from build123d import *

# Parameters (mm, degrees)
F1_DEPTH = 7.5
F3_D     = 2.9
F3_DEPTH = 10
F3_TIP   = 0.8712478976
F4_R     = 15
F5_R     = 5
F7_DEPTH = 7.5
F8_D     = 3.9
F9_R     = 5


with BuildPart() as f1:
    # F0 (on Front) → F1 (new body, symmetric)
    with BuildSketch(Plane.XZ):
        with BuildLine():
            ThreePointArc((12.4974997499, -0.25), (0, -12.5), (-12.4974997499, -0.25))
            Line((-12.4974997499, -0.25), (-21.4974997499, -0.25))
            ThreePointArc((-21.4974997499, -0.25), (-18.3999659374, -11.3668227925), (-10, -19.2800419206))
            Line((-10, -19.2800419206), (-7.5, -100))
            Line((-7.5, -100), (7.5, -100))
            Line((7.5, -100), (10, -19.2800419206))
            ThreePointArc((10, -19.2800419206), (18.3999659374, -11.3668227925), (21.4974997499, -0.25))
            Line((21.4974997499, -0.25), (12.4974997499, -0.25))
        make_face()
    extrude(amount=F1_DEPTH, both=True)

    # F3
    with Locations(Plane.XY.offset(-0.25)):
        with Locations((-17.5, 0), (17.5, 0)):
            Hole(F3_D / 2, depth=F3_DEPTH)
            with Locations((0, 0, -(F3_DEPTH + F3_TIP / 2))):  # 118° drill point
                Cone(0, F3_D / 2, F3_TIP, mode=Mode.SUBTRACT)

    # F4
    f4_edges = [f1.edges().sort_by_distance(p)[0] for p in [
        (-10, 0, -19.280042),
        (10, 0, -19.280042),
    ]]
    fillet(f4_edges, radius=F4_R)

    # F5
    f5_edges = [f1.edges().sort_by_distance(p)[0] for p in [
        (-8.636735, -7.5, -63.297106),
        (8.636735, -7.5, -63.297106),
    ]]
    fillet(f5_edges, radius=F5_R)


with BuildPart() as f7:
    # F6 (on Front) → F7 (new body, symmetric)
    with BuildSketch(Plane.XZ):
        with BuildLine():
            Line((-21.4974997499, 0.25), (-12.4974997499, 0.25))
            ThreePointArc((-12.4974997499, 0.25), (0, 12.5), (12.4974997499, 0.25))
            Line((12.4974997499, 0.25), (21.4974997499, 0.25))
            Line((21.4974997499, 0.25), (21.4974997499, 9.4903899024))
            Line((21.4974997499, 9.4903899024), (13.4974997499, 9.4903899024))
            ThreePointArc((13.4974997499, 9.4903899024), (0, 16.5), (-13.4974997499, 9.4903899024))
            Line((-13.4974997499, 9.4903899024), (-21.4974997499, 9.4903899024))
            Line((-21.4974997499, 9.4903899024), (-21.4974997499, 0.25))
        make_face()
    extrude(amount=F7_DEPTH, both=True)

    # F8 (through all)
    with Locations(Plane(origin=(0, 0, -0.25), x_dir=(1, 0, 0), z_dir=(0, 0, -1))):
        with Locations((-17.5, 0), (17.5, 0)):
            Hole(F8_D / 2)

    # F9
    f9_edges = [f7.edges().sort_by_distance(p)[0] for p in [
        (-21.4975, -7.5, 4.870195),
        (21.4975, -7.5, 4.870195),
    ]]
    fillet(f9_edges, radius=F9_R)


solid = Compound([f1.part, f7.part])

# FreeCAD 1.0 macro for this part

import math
import FreeCAD as App
import Part
import Sketcher


def edges_at(feature, points):
    """Names of the edges that pass closest to the given points."""
    edges = feature.Shape.Edges
    near = lambda p: min(range(len(edges)), key=lambda i: edges[i].distToShape(Part.Vertex(*p))[0])
    return sorted({f"Edge{near(p) + 1}" for p in points})

doc = App.newDocument("Part")
body = doc.addObject("PartDesign::Body", "Body")

# Sketch on XZ plane
sketch1 = body.newObject("Sketcher::SketchObject", "Sketch")
sketch1.AttachmentSupport = (doc.getObject("XZ_Plane"), [""])
sketch1.MapMode = "FlatFace"
sketch1.addGeometry(Part.ArcOfCircle(Part.Circle(App.Vector(0, 0, 0), App.Vector(0, 0, 1), 12.5), math.radians(-178.854008), math.radians(-1.145992)), False)
sketch1.addGeometry(Part.LineSegment(App.Vector(-12.4975, -0.25, 0), App.Vector(-21.4975, -0.25, 0)), False)
sketch1.addGeometry(Part.ArcOfCircle(Part.Circle(App.Vector(0, -0.25, 0), App.Vector(0, 0, 1), 21.4975), math.radians(180), math.radians(242.278751)), False)
sketch1.addGeometry(Part.LineSegment(App.Vector(-10, -19.280042, 0), App.Vector(-7.5, -100, 0)), False)
sketch1.addGeometry(Part.LineSegment(App.Vector(-7.5, -100, 0), App.Vector(7.5, -100, 0)), False)
sketch1.addGeometry(Part.LineSegment(App.Vector(7.5, -100, 0), App.Vector(10, -19.280042, 0)), False)
sketch1.addGeometry(Part.ArcOfCircle(Part.Circle(App.Vector(0, -0.25, 0), App.Vector(0, 0, 1), 21.4975), math.radians(-62.278751), math.radians(0)), False)
sketch1.addGeometry(Part.LineSegment(App.Vector(21.4975, -0.25, 0), App.Vector(12.4975, -0.25, 0)), False)
sketch1.addConstraint(Sketcher.Constraint("Coincident", 0, 1, 1, 1))
sketch1.addConstraint(Sketcher.Constraint("Coincident", 1, 2, 2, 1))
sketch1.addConstraint(Sketcher.Constraint("Coincident", 2, 2, 3, 1))
sketch1.addConstraint(Sketcher.Constraint("Coincident", 3, 2, 4, 1))
sketch1.addConstraint(Sketcher.Constraint("Coincident", 4, 2, 5, 1))
sketch1.addConstraint(Sketcher.Constraint("Coincident", 5, 2, 6, 1))
sketch1.addConstraint(Sketcher.Constraint("Coincident", 6, 2, 7, 1))
sketch1.addConstraint(Sketcher.Constraint("Coincident", 7, 2, 0, 2))
sketch1.addConstraint(Sketcher.Constraint("Horizontal", 1))
sketch1.addConstraint(Sketcher.Constraint("Horizontal", 4))
sketch1.addConstraint(Sketcher.Constraint("Horizontal", 7))
sketch1.addConstraint(Sketcher.Constraint("Coincident", 0, 3, -1, 1))
sketch1.addConstraint(Sketcher.Constraint("Coincident", 6, 3, 2, 3))
sketch1.addConstraint(Sketcher.Constraint("Equal", 2, 6))
sketch1.addConstraint(Sketcher.Constraint("Symmetric", 2, 2, 5, 2, -2))
sketch1.addConstraint(Sketcher.Constraint("Horizontal", 6, 3, 0, 1))
sketch1.addConstraint(Sketcher.Constraint("Horizontal", 1, 2, 6, 2))
sketch1.addConstraint(Sketcher.Constraint("Equal", 3, 5))
sketch1.addConstraint(Sketcher.Constraint("Radius", 0, 12.5))
sketch1.addConstraint(Sketcher.Constraint("DistanceX", 1, 2, 1, 1, 9.0))
sketch1.addConstraint(Sketcher.Constraint("DistanceX", 4, 1, 4, 2, 15.0))
sketch1.addConstraint(Sketcher.Constraint("DistanceX", 2, 2, -1, 1, 10.0))
sketch1.addConstraint(Sketcher.Constraint("DistanceY", 3, 2, -1, 1, 100.0))
sketch1.addConstraint(Sketcher.Constraint("Radius", 2, 21.4975))
pad1 = body.newObject("PartDesign::Pad", "Pad")
pad1.Profile = sketch1
pad1.Length = 15
pad1.Midplane = True

# Sketch on XY plane
sketch2 = body.newObject("Sketcher::SketchObject", "Sketch001")
sketch2.AttachmentSupport = (doc.getObject("XY_Plane"), [""])
sketch2.MapMode = "FlatFace"
sketch2.AttachmentOffset = App.Placement(App.Vector(0, 0, -0.25), App.Rotation())
sketch2.addGeometry(Part.Circle(App.Vector(-17.5, 0, 0), App.Vector(0, 0, 1), 1.4), False)
sketch2.addGeometry(Part.Circle(App.Vector(17.5, 0, 0), App.Vector(0, 0, 1), 1.4), False)
sketch2.addConstraint(Sketcher.Constraint("Equal", 0, 1))
sketch2.addConstraint(Sketcher.Constraint("Symmetric", 0, 3, 1, 3, -1, 1))
sketch2.addConstraint(Sketcher.Constraint("PointOnObject", 0, 3, -1))
sketch2.addConstraint(Sketcher.Constraint("Diameter", 0, 2.9))
sketch2.addConstraint(Sketcher.Constraint("DistanceX", 0, 3, 1, 3, 35.0))
doc.recompute()
hole = body.newObject("PartDesign::Hole", "Hole")
hole.Profile = sketch2
hole.ThreadType = "None"
hole.Diameter = 2.9
hole.DepthType = "Dimension"
hole.Depth = 10
hole.DrillPoint = "Angled"
hole.DrillPointAngle = 118
doc.recompute()

fillet = body.newObject("PartDesign::Fillet", "Fillet")
fillet.Base = (hole, edges_at(hole, [(-10, 0, -19.28), (10, 0, -19.28)]))
fillet.Radius = 15
doc.recompute()

fillet2 = body.newObject("PartDesign::Fillet", "Fillet001")
fillet2.Base = (fillet, edges_at(fillet, [(-8.637, -7.5, -63.297), (8.637, -7.5, -63.297)]))
fillet2.Radius = 5
body2 = doc.addObject("PartDesign::Body", "Body001")

# Sketch on XZ plane
sketch3 = body2.newObject("Sketcher::SketchObject", "Sketch002")
sketch3.AttachmentSupport = (doc.getObject("XZ_Plane001"), [""])
sketch3.MapMode = "FlatFace"
sketch3.addGeometry(Part.LineSegment(App.Vector(-21, 0, 0), App.Vector(-12, 0, 0)), False)
sketch3.addGeometry(Part.ArcOfCircle(Part.Circle(App.Vector(0, 0, 0), App.Vector(0, 0, 1), 12), math.radians(1), math.radians(179)), False)
sketch3.addGeometry(Part.LineSegment(App.Vector(12, 0, 0), App.Vector(21, 0, 0)), False)
sketch3.addGeometry(Part.LineSegment(App.Vector(21, 0, 0), App.Vector(21, 9, 0)), False)
sketch3.addGeometry(Part.LineSegment(App.Vector(21, 9, 0), App.Vector(13, 9, 0)), False)
sketch3.addGeometry(Part.ArcOfCircle(Part.Circle(App.Vector(0, 0, 0), App.Vector(0, 0, 1), 16), math.radians(35), math.radians(145)), False)
sketch3.addGeometry(Part.LineSegment(App.Vector(-13, 9, 0), App.Vector(-21, 9, 0)), False)
sketch3.addGeometry(Part.LineSegment(App.Vector(-21, 9, 0), App.Vector(-21, 0, 0)), False)
sketch3.addConstraint(Sketcher.Constraint("Coincident", 0, 2, 1, 2))
sketch3.addConstraint(Sketcher.Constraint("Coincident", 1, 1, 2, 1))
sketch3.addConstraint(Sketcher.Constraint("Coincident", 2, 2, 3, 1))
sketch3.addConstraint(Sketcher.Constraint("Coincident", 3, 2, 4, 1))
sketch3.addConstraint(Sketcher.Constraint("Coincident", 4, 2, 5, 1))
sketch3.addConstraint(Sketcher.Constraint("Coincident", 5, 2, 6, 1))
sketch3.addConstraint(Sketcher.Constraint("Coincident", 6, 2, 7, 1))
sketch3.addConstraint(Sketcher.Constraint("Coincident", 7, 2, 0, 1))
sketch3.addConstraint(Sketcher.Constraint("Horizontal", 0))
sketch3.addConstraint(Sketcher.Constraint("Horizontal", 2))
sketch3.addConstraint(Sketcher.Constraint("Vertical", 3))
sketch3.addConstraint(Sketcher.Constraint("Horizontal", 4))
sketch3.addConstraint(Sketcher.Constraint("Horizontal", 6))
sketch3.addConstraint(Sketcher.Constraint("Vertical", 7))
sketch3.addConstraint(Sketcher.Constraint("Coincident", 1, 3, -1, 1))
sketch3.addConstraint(Sketcher.Constraint("Coincident", 5, 3, -1, 1))
sketch3.addConstraint(Sketcher.Constraint("Symmetric", 3, 2, 6, 2, -2))
sketch3.addConstraint(Sketcher.Constraint("Horizontal", 0, 2, 1, 1))
sketch3.addConstraint(Sketcher.Constraint("Radius", 1, 12.5))
sketch3.addConstraint(Sketcher.Constraint("Radius", 5, 16.5))
sketch3.addConstraint(Sketcher.Constraint("DistanceX", 0, 1, 0, 2, 9.0))
sketch3.addConstraint(Sketcher.Constraint("DistanceX", 4, 2, 4, 1, 8.0))
sketch3.addConstraint(Sketcher.Constraint("DistanceY", -1, 1, 0, 2, 0.25))
pad2 = body2.newObject("PartDesign::Pad", "Pad001")
pad2.Profile = sketch3
pad2.Length = 15
pad2.Midplane = True

# Sketch on XY plane
sketch4 = body2.newObject("Sketcher::SketchObject", "Sketch003")
sketch4.AttachmentSupport = (doc.getObject("XY_Plane001"), [""])
sketch4.MapMode = "FlatFace"
sketch4.AttachmentOffset = App.Placement(App.Vector(0, 0, -0.25), App.Rotation())
sketch4.addGeometry(Part.Circle(App.Vector(-17.5, 0, 0), App.Vector(0, 0, 1), 1.9), False)
sketch4.addGeometry(Part.Circle(App.Vector(17.5, 0, 0), App.Vector(0, 0, 1), 1.9), False)
sketch4.addConstraint(Sketcher.Constraint("Equal", 0, 1))
sketch4.addConstraint(Sketcher.Constraint("Symmetric", 0, 3, 1, 3, -1, 1))
sketch4.addConstraint(Sketcher.Constraint("PointOnObject", 0, 3, -1))
sketch4.addConstraint(Sketcher.Constraint("Diameter", 0, 3.9))
sketch4.addConstraint(Sketcher.Constraint("DistanceX", 0, 3, 1, 3, 35.0))
doc.recompute()
hole2 = body2.newObject("PartDesign::Hole", "Hole001")
hole2.Profile = sketch4
hole2.ThreadType = "None"
hole2.Diameter = 3.9
hole2.DepthType = "ThroughAll"
hole2.Reversed = True
doc.recompute()

fillet3 = body2.newObject("PartDesign::Fillet", "Fillet002")
fillet3.Base = (hole2, edges_at(hole2, [(-21.497, -7.5, 4.87), (21.497, -7.5, 4.87)]))
fillet3.Radius = 5

doc.recompute()
